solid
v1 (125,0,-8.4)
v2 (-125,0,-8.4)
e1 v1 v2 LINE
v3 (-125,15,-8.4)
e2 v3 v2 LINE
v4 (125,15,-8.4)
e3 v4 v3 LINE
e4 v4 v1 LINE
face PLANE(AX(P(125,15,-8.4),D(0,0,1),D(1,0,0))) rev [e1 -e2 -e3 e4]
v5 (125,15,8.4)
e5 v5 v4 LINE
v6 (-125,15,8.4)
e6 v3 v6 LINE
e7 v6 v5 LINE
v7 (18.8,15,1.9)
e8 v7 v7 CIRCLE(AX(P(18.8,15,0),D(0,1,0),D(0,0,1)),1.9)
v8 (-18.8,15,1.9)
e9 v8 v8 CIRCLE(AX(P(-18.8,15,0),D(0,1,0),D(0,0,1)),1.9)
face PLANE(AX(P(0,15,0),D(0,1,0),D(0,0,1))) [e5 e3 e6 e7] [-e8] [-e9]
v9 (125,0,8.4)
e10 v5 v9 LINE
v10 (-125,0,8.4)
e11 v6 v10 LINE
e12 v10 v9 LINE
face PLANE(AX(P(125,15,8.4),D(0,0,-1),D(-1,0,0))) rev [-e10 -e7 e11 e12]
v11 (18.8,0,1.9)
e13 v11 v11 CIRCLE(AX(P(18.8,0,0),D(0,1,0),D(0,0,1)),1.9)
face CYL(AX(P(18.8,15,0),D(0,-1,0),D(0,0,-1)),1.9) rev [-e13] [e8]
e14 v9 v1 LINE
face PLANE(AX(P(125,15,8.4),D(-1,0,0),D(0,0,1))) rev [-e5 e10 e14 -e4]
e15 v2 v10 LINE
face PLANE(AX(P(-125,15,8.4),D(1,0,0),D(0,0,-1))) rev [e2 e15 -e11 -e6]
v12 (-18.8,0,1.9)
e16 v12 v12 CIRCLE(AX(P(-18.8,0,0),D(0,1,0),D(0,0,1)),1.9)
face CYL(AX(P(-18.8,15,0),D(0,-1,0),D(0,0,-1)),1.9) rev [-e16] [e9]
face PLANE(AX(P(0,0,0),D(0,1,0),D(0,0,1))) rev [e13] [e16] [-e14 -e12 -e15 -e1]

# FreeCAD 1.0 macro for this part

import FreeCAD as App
import Part
import Sketcher

V = App.Vector
Q = App.Units.Quantity

doc = App.newDocument("Part")
body = doc.addObject("PartDesign::Body", "Body")

# Sketch on XZ plane
sketch1 = doc.addObject("Sketcher::SketchObject", "Sketch")
body.addObject(sketch1)
sketch1.AttachmentSupport = (doc.XZ_Plane, [""])
sketch1.MapMode = "FlatFace"
sketch1.addGeometry([
    Part.LineSegment(V(-125, -8.4, 0), V(-125, 8.4, 0)),  # 0
    Part.LineSegment(V(-125, 8.4, 0), V(125, 8.4, 0)),  # 1
    Part.LineSegment(V(125, 8.4, 0), V(125, -8.4, 0)),  # 2
    Part.LineSegment(V(125, -8.4, 0), V(-125, -8.4, 0)),  # 3
    Part.Circle(V(-18.8, 0, 0), V(0, 0, 1), 1.9),  # 4
    Part.Circle(V(18.8, 0, 0), V(0, 0, 1), 1.9),  # 5
], False)
sketch1.addConstraint([
    Sketcher.Constraint("Coincident", 0, 2, 1, 1),
    Sketcher.Constraint("Coincident", 1, 2, 2, 1),
    Sketcher.Constraint("Coincident", 2, 2, 3, 1),
    Sketcher.Constraint("Coincident", 3, 2, 0, 1),
    Sketcher.Constraint("Vertical", 0),
    Sketcher.Constraint("Horizontal", 1),
    Sketcher.Constraint("Vertical", 2),
    Sketcher.Constraint("Horizontal", 3),
    Sketcher.Constraint("Equal", 4, 5),
    Sketcher.Constraint("Symmetric", 4, 3, 5, 3, -1, 1),
    Sketcher.Constraint("Symmetric", 0, 2, 2, 2, -1, 1),
    Sketcher.Constraint("PointOnObject", 4, 3, -1),
    Sketcher.Constraint("Diameter", 4, Q("3.8 mm")),
    Sketcher.Constraint("DistanceX", 1, 1, 1, 2, Q("250 mm")),
    Sketcher.Constraint("DistanceY", 0, 1, 0, 2, Q("16.8 mm")),
    Sketcher.Constraint("DistanceX", 4, 3, -1, 1, Q("18.8 mm")),
])
pad1 = doc.addObject("PartDesign::Pad", "Pad")
body.addObject(pad1)
pad1.Profile = sketch1
pad1.Length = 15
pad1.Reversed = True

doc.recompute()
